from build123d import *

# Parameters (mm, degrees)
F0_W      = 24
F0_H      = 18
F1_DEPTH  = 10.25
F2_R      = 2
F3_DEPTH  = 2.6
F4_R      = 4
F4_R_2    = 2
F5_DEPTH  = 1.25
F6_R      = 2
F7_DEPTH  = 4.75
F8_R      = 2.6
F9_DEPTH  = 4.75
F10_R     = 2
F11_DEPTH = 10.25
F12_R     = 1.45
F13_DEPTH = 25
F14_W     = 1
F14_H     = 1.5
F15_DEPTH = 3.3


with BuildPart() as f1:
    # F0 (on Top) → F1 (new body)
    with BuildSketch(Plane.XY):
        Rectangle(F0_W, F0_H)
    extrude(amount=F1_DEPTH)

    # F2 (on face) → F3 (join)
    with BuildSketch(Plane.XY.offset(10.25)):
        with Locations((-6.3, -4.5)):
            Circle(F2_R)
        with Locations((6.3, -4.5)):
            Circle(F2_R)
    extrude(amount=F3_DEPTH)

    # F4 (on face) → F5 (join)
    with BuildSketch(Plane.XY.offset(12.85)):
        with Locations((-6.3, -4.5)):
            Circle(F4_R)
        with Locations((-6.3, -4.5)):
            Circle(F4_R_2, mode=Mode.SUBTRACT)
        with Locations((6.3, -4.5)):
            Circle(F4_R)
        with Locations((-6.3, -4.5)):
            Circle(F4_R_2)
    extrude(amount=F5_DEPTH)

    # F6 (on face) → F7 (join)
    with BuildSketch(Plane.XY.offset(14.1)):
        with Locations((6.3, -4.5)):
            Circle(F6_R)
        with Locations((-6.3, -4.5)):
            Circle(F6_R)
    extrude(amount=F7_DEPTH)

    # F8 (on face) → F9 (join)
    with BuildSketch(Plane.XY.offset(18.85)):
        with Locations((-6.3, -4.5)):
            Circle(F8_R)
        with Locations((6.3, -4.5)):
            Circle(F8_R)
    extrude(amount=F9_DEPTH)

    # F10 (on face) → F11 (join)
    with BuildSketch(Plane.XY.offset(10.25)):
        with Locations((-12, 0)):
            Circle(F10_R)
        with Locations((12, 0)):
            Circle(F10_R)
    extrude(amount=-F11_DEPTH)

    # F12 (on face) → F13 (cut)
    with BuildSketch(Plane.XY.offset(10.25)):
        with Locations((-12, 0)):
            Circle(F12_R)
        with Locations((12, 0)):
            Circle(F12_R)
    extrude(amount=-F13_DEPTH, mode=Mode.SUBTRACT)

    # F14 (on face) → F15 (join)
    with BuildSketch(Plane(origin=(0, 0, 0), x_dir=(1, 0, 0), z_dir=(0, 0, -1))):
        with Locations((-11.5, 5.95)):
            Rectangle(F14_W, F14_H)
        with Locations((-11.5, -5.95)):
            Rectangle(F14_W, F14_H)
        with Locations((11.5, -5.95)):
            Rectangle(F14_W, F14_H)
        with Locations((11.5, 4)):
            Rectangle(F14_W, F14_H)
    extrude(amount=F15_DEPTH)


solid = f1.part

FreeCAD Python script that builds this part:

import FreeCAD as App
import Part
import Sketcher

V = App.Vector
Q = App.Units.Quantity

doc = App.newDocument("Part")
params = doc.addObject("Spreadsheet::Sheet", "Params")
for row, (alias, value) in enumerate([
    ("sketch1_width", "24 mm"),
    ("sketch1_height", "18 mm"),
    ("pad1_length", "10.25 mm"),
    ("sketch2_diameter", "4 mm"),
    ("pad2_length", "2.6 mm"),
    ("sketch3_diameter", "8 mm"),
    ("pad3_length", "1.25 mm"),
    ("sketch4_diameter", "4 mm"),
    ("pad4_length", "4.75 mm"),
    ("sketch5_diameter", "5.2 mm"),
    ("pad5_length", "4.75 mm"),
    ("sketch6_diameter", "4 mm"),
    ("pad6_length", "10.25 mm"),
    ("sketch7_diameter", "2.9 mm"),
    ("pocket1_length", "25 mm"),
    ("sketch8_width", "1 mm"),
    ("sketch8_height", "1.5 mm"),
    ("pad7_length", "3.3 mm"),
], start=1):
    params.set(f"A{row}", alias)
    params.set(f"B{row}", "=" + value)
    params.setAlias(f"B{row}", alias)

body = doc.addObject("PartDesign::Body", "Body")

sketch1 = doc.addObject("Sketcher::SketchObject", "Sketch")
body.addObject(sketch1)
sketch1.AttachmentSupport = (doc.XY_Plane, [""])
sketch1.MapMode = "FlatFace"
sketch1.addGeometry([
    Part.LineSegment(V(-12, 9, 0), V(-12, -9, 0)),
    Part.LineSegment(V(-12, -9, 0), V(12, -9, 0)),
    Part.LineSegment(V(12, -9, 0), V(12, 9, 0)),
    Part.LineSegment(V(12, 9, 0), V(-12, 9, 0)),
], False)
sketch1.addConstraint([
    Sketcher.Constraint("Coincident", 0, 2, 1, 1),
    Sketcher.Constraint("Coincident", 1, 2, 2, 1),
    Sketcher.Constraint("Coincident", 2, 2, 3, 1),
    Sketcher.Constraint("Coincident", 3, 2, 0, 1),
    Sketcher.Constraint("Vertical", 0),
    Sketcher.Constraint("Horizontal", 1),
    Sketcher.Constraint("Vertical", 2),
    Sketcher.Constraint("Horizontal", 3),
    Sketcher.Constraint("Symmetric", 0, 2, 2, 2, -1, 1),
    Sketcher.Constraint("DistanceX", 1, 1, 1, 2, Q("24 mm")),
    Sketcher.Constraint("DistanceY", 0, 2, 0, 1, Q("18 mm")),
])
sketch1.setExpression("Constraints[9]", "Params.sketch1_width")
sketch1.setExpression("Constraints[10]", "Params.sketch1_height")
pad1 = doc.addObject("PartDesign::Pad", "Pad")
body.addObject(pad1)
pad1.Profile = sketch1
pad1.setExpression("Length", "Params.pad1_length")

sketch2 = doc.addObject("Sketcher::SketchObject", "Sketch001")
body.addObject(sketch2)
sketch2.AttachmentSupport = (doc.XY_Plane, [""])
sketch2.MapMode = "FlatFace"
sketch2.AttachmentOffset = App.Placement(V(0, 0, 10.25), App.Rotation())
sketch2.addGeometry([
    Part.Circle(V(-6.3, -4.5, 0), V(0, 0, 1), 2),
    Part.Circle(V(6.3, -4.5, 0), V(0, 0, 1), 2),
], False)
sketch2.addConstraint([
    Sketcher.Constraint("Equal", 0, 1),
    Sketcher.Constraint("Symmetric", 0, 3, 1, 3, -2),
    Sketcher.Constraint("Diameter", 0, Q("4 mm")),
    Sketcher.Constraint("DistanceX", 0, 3, -1, 1, Q("6.3 mm")),
    Sketcher.Constraint("DistanceY", 0, 3, -1, 1, Q("4.5 mm")),
])
sketch2.setExpression("Constraints[2]", "Params.sketch2_diameter")
pad2 = doc.addObject("PartDesign::Pad", "Pad001")
body.addObject(pad2)
pad2.Profile = sketch2
pad2.setExpression("Length", "Params.pad2_length")

sketch3 = doc.addObject("Sketcher::SketchObject", "Sketch002")
body.addObject(sketch3)
sketch3.AttachmentSupport = (doc.XY_Plane, [""])
sketch3.MapMode = "FlatFace"
sketch3.AttachmentOffset = App.Placement(V(0, 0, 12.85), App.Rotation())
sketch3.addGeometry([
    Part.Circle(V(-6.3, -4.5, 0), V(0, 0, 1), 4),
    Part.Circle(V(6.3, -4.5, 0), V(0, 0, 1), 4),
], False)
sketch3.addConstraint([
    Sketcher.Constraint("Equal", 0, 1),
    Sketcher.Constraint("Symmetric", 0, 3, 1, 3, -2),
    Sketcher.Constraint("Diameter", 0, Q("8 mm")),
    Sketcher.Constraint("DistanceX", 0, 3, -1, 1, Q("6.3 mm")),
    Sketcher.Constraint("DistanceY", 0, 3, -1, 1, Q("4.5 mm")),
])
sketch3.setExpression("Constraints[2]", "Params.sketch3_diameter")
pad3 = doc.addObject("PartDesign::Pad", "Pad002")
body.addObject(pad3)
pad3.Profile = sketch3
pad3.setExpression("Length", "Params.pad3_length")

sketch4 = doc.addObject("Sketcher::SketchObject", "Sketch003")
body.addObject(sketch4)
sketch4.AttachmentSupport = (doc.XY_Plane, [""])
sketch4.MapMode = "FlatFace"
sketch4.AttachmentOffset = App.Placement(V(0, 0, 14.1), App.Rotation())
sketch4.addGeometry([
    Part.Circle(V(6.3, -4.5, 0), V(0, 0, 1), 2),
    Part.Circle(V(-6.3, -4.5, 0), V(0, 0, 1), 2),
], False)
sketch4.addConstraint([
    Sketcher.Constraint("Equal", 0, 1),
    Sketcher.Constraint("Symmetric", 0, 3, 1, 3, -2),
    Sketcher.Constraint("Diameter", 0, Q("4 mm")),
    Sketcher.Constraint("DistanceX", -1, 1, 0, 3, Q("6.3 mm")),
    Sketcher.Constraint("DistanceY", 0, 3, -1, 1, Q("4.5 mm")),
])
sketch4.setExpression("Constraints[2]", "Params.sketch4_diameter")
pad4 = doc.addObject("PartDesign::Pad", "Pad003")
body.addObject(pad4)
pad4.Profile = sketch4
pad4.setExpression("Length", "Params.pad4_length")

sketch5 = doc.addObject("Sketcher::SketchObject", "Sketch004")
body.addObject(sketch5)
sketch5.AttachmentSupport = (doc.XY_Plane, [""])
sketch5.MapMode = "FlatFace"
sketch5.AttachmentOffset = App.Placement(V(0, 0, 18.85), App.Rotation())
sketch5.addGeometry([
    Part.Circle(V(-6.3, -4.5, 0), V(0, 0, 1), 2.6),
    Part.Circle(V(6.3, -4.5, 0), V(0, 0, 1), 2.6),
], False)
sketch5.addConstraint([
    Sketcher.Constraint("Equal", 0, 1),
    Sketcher.Constraint("Symmetric", 0, 3, 1, 3, -2),
    Sketcher.Constraint("Diameter", 0, Q("5.2 mm")),
    Sketcher.Constraint("DistanceX", 0, 3, -1, 1, Q("6.3 mm")),
    Sketcher.Constraint("DistanceY", 0, 3, -1, 1, Q("4.5 mm")),
])
sketch5.setExpression("Constraints[2]", "Params.sketch5_diameter")
pad5 = doc.addObject("PartDesign::Pad", "Pad004")
body.addObject(pad5)
pad5.Profile = sketch5
pad5.setExpression("Length", "Params.pad5_length")

sketch6 = doc.addObject("Sketcher::SketchObject", "Sketch005")
body.addObject(sketch6)
sketch6.AttachmentSupport = (doc.XY_Plane, [""])
sketch6.MapMode = "FlatFace"
sketch6.AttachmentOffset = App.Placement(V(0, 0, 10.25), App.Rotation())
sketch6.addGeometry([
    Part.Circle(V(-12, 0, 0), V(0, 0, 1), 2),
    Part.Circle(V(12, 0, 0), V(0, 0, 1), 2),
], False)
sketch6.addConstraint([
    Sketcher.Constraint("Equal", 0, 1),
    Sketcher.Constraint("Symmetric", 0, 3, 1, 3, -1, 1),
    Sketcher.Constraint("PointOnObject", 0, 3, -1),
    Sketcher.Constraint("Diameter", 0, Q("4 mm")),
    Sketcher.Constraint("DistanceX", 0, 3, -1, 1, Q("12 mm")),
])
sketch6.setExpression("Constraints[3]", "Params.sketch6_diameter")
pad6 = doc.addObject("PartDesign::Pad", "Pad005")
body.addObject(pad6)
pad6.Profile = sketch6
pad6.setExpression("Length", "Params.pad6_length")
pad6.Reversed = True

sketch7 = doc.addObject("Sketcher::SketchObject", "Sketch006")
body.addObject(sketch7)
sketch7.AttachmentSupport = (doc.XY_Plane, [""])
sketch7.MapMode = "FlatFace"
sketch7.AttachmentOffset = App.Placement(V(0, 0, 10.25), App.Rotation())
sketch7.addGeometry([
    Part.Circle(V(-12, 0, 0), V(0, 0, 1), 1.4),
    Part.Circle(V(12, 0, 0), V(0, 0, 1), 1.4),
], False)
sketch7.addConstraint([
    Sketcher.Constraint("Equal", 0, 1),
    Sketcher.Constraint("Symmetric", 0, 3, 1, 3, -1, 1),
    Sketcher.Constraint("PointOnObject", 0, 3, -1),
    Sketcher.Constraint("Diameter", 0, Q("2.9 mm")),
    Sketcher.Constraint("DistanceX", 0, 3, -1, 1, Q("12 mm")),
])
sketch7.setExpression("Constraints[3]", "Params.sketch7_diameter")
pocket1 = doc.addObject("PartDesign::Pocket", "Pocket")
body.addObject(pocket1)
pocket1.Profile = sketch7
pocket1.setExpression("Length", "Params.pocket1_length")

sketch8 = doc.addObject("Sketcher::SketchObject", "Sketch007")
body.addObject(sketch8)
sketch8.AttachmentSupport = (doc.XY_Plane, [""])
sketch8.MapMode = "FlatFace"
sketch8.addGeometry([
    Part.LineSegment(V(-12, -6.7, 0), V(-12, -5.2, 0)),
    Part.LineSegment(V(-12, -5.2, 0), V(-11, -5.2, 0)),
    Part.LineSegment(V(-11, -5.2, 0), V(-11, -6.7, 0)),
    Part.LineSegment(V(-11, -6.7, 0), V(-12, -6.7, 0)),
    Part.LineSegment(V(-12, 5.2, 0), V(-12, 6.7, 0)),
    Part.LineSegment(V(-12, 6.7, 0), V(-11, 6.7, 0)),
    Part.LineSegment(V(-11, 6.7, 0), V(-11, 5.2, 0)),
    Part.LineSegment(V(-11, 5.2, 0), V(-12, 5.2, 0)),
    Part.LineSegment(V(11, 5.2, 0), V(11, 6.7, 0)),
    Part.LineSegment(V(11, 6.7, 0), V(12, 6.7, 0)),
    Part.LineSegment(V(12, 6.7, 0), V(12, 5.2, 0)),
    Part.LineSegment(V(12, 5.2, 0), V(11, 5.2, 0)),
    Part.LineSegment(V(11, -4.8, 0), V(11, -3.2, 0)),
    Part.LineSegment(V(11, -3.2, 0), V(12, -3.2, 0)),
    Part.LineSegment(V(12, -3.2, 0), V(12, -4.8, 0)),
    Part.LineSegment(V(12, -4.8, 0), V(11, -4.8, 0)),
], False)
sketch8.addConstraint([
    Sketcher.Constraint("Coincident", 0, 2, 1, 1),
    Sketcher.Constraint("Coincident", 1, 2, 2, 1),
    Sketcher.Constraint("Coincident", 2, 2, 3, 1),
    Sketcher.Constraint("Coincident", 3, 2, 0, 1),
    Sketcher.Constraint("Coincident", 4, 2, 5, 1),
    Sketcher.Constraint("Coincident", 5, 2, 6, 1),
    Sketcher.Constraint("Coincident", 6, 2, 7, 1),
    Sketcher.Constraint("Coincident", 7, 2, 4, 1),
    Sketcher.Constraint("Coincident", 8, 2, 9, 1),
    Sketcher.Constraint("Coincident", 9, 2, 10, 1),
    Sketcher.Constraint("Coincident", 10, 2, 11, 1),
    Sketcher.Constraint("Coincident", 11, 2, 8, 1),
    Sketcher.Constraint("Coincident", 12, 2, 13, 1),
    Sketcher.Constraint("Coincident", 13, 2, 14, 1),
    Sketcher.Constraint("Coincident", 14, 2, 15, 1),
    Sketcher.Constraint("Coincident", 15, 2, 12, 1),
    Sketcher.Constraint("Vertical", 0),
    Sketcher.Constraint("Horizontal", 1),
    Sketcher.Constraint("Vertical", 2),
    Sketcher.Constraint("Horizontal", 3),
    Sketcher.Constraint("Vertical", 4),
    Sketcher.Constraint("Horizontal", 5),
    Sketcher.Constraint("Vertical", 6),
    Sketcher.Constraint("Horizontal", 7),
    Sketcher.Constraint("Vertical", 8),
    Sketcher.Constraint("Horizontal", 9),
    Sketcher.Constraint("Vertical", 10),
    Sketcher.Constraint("Horizontal", 11),
    Sketcher.Constraint("Vertical", 12),
    Sketcher.Constraint("Horizontal", 13),
    Sketcher.Constraint("Vertical", 14),
    Sketcher.Constraint("Horizontal", 15),
    Sketcher.Constraint("Symmetric", 2, 2, 8, 2, -1, 1),
    Sketcher.Constraint("Symmetric", 0, 2, 10, 2, -1, 1),
    Sketcher.Constraint("Symmetric", 5, 2, 8, 2, -2),
    Sketcher.Constraint("Symmetric", 7, 2, 10, 2, -2),
    Sketcher.Constraint("Vertical", 11, 2, 12, 2),
    Sketcher.Constraint("Vertical", 10, 2, 13, 2),
    Sketcher.Constraint("Equal", 10, 12),
    Sketcher.Constraint("DistanceX", 1, 1, 1, 2, Q("1 mm")),
    Sketcher.Constraint("DistanceY", 0, 1, 0, 2, Q("1.5 mm")),
    Sketcher.Constraint("DistanceX", 0, 2, -1, 1, Q("12 mm")),
    Sketcher.Constraint("DistanceY", 0, 2, -1, 1, Q("5.2 mm")),
    Sketcher.Constraint("DistanceY", 12, 2, -1, 1, Q("3.25 mm")),
])
sketch8.setExpression("Constraints[39]", "Params.sketch8_width")
sketch8.setExpression("Constraints[40]", "Params.sketch8_height")
pad7 = doc.addObject("PartDesign::Pad", "Pad006")
body.addObject(pad7)
pad7.Profile = sketch8
pad7.setExpression("Length", "Params.pad7_length")
pad7.Reversed = True

doc.recompute()
